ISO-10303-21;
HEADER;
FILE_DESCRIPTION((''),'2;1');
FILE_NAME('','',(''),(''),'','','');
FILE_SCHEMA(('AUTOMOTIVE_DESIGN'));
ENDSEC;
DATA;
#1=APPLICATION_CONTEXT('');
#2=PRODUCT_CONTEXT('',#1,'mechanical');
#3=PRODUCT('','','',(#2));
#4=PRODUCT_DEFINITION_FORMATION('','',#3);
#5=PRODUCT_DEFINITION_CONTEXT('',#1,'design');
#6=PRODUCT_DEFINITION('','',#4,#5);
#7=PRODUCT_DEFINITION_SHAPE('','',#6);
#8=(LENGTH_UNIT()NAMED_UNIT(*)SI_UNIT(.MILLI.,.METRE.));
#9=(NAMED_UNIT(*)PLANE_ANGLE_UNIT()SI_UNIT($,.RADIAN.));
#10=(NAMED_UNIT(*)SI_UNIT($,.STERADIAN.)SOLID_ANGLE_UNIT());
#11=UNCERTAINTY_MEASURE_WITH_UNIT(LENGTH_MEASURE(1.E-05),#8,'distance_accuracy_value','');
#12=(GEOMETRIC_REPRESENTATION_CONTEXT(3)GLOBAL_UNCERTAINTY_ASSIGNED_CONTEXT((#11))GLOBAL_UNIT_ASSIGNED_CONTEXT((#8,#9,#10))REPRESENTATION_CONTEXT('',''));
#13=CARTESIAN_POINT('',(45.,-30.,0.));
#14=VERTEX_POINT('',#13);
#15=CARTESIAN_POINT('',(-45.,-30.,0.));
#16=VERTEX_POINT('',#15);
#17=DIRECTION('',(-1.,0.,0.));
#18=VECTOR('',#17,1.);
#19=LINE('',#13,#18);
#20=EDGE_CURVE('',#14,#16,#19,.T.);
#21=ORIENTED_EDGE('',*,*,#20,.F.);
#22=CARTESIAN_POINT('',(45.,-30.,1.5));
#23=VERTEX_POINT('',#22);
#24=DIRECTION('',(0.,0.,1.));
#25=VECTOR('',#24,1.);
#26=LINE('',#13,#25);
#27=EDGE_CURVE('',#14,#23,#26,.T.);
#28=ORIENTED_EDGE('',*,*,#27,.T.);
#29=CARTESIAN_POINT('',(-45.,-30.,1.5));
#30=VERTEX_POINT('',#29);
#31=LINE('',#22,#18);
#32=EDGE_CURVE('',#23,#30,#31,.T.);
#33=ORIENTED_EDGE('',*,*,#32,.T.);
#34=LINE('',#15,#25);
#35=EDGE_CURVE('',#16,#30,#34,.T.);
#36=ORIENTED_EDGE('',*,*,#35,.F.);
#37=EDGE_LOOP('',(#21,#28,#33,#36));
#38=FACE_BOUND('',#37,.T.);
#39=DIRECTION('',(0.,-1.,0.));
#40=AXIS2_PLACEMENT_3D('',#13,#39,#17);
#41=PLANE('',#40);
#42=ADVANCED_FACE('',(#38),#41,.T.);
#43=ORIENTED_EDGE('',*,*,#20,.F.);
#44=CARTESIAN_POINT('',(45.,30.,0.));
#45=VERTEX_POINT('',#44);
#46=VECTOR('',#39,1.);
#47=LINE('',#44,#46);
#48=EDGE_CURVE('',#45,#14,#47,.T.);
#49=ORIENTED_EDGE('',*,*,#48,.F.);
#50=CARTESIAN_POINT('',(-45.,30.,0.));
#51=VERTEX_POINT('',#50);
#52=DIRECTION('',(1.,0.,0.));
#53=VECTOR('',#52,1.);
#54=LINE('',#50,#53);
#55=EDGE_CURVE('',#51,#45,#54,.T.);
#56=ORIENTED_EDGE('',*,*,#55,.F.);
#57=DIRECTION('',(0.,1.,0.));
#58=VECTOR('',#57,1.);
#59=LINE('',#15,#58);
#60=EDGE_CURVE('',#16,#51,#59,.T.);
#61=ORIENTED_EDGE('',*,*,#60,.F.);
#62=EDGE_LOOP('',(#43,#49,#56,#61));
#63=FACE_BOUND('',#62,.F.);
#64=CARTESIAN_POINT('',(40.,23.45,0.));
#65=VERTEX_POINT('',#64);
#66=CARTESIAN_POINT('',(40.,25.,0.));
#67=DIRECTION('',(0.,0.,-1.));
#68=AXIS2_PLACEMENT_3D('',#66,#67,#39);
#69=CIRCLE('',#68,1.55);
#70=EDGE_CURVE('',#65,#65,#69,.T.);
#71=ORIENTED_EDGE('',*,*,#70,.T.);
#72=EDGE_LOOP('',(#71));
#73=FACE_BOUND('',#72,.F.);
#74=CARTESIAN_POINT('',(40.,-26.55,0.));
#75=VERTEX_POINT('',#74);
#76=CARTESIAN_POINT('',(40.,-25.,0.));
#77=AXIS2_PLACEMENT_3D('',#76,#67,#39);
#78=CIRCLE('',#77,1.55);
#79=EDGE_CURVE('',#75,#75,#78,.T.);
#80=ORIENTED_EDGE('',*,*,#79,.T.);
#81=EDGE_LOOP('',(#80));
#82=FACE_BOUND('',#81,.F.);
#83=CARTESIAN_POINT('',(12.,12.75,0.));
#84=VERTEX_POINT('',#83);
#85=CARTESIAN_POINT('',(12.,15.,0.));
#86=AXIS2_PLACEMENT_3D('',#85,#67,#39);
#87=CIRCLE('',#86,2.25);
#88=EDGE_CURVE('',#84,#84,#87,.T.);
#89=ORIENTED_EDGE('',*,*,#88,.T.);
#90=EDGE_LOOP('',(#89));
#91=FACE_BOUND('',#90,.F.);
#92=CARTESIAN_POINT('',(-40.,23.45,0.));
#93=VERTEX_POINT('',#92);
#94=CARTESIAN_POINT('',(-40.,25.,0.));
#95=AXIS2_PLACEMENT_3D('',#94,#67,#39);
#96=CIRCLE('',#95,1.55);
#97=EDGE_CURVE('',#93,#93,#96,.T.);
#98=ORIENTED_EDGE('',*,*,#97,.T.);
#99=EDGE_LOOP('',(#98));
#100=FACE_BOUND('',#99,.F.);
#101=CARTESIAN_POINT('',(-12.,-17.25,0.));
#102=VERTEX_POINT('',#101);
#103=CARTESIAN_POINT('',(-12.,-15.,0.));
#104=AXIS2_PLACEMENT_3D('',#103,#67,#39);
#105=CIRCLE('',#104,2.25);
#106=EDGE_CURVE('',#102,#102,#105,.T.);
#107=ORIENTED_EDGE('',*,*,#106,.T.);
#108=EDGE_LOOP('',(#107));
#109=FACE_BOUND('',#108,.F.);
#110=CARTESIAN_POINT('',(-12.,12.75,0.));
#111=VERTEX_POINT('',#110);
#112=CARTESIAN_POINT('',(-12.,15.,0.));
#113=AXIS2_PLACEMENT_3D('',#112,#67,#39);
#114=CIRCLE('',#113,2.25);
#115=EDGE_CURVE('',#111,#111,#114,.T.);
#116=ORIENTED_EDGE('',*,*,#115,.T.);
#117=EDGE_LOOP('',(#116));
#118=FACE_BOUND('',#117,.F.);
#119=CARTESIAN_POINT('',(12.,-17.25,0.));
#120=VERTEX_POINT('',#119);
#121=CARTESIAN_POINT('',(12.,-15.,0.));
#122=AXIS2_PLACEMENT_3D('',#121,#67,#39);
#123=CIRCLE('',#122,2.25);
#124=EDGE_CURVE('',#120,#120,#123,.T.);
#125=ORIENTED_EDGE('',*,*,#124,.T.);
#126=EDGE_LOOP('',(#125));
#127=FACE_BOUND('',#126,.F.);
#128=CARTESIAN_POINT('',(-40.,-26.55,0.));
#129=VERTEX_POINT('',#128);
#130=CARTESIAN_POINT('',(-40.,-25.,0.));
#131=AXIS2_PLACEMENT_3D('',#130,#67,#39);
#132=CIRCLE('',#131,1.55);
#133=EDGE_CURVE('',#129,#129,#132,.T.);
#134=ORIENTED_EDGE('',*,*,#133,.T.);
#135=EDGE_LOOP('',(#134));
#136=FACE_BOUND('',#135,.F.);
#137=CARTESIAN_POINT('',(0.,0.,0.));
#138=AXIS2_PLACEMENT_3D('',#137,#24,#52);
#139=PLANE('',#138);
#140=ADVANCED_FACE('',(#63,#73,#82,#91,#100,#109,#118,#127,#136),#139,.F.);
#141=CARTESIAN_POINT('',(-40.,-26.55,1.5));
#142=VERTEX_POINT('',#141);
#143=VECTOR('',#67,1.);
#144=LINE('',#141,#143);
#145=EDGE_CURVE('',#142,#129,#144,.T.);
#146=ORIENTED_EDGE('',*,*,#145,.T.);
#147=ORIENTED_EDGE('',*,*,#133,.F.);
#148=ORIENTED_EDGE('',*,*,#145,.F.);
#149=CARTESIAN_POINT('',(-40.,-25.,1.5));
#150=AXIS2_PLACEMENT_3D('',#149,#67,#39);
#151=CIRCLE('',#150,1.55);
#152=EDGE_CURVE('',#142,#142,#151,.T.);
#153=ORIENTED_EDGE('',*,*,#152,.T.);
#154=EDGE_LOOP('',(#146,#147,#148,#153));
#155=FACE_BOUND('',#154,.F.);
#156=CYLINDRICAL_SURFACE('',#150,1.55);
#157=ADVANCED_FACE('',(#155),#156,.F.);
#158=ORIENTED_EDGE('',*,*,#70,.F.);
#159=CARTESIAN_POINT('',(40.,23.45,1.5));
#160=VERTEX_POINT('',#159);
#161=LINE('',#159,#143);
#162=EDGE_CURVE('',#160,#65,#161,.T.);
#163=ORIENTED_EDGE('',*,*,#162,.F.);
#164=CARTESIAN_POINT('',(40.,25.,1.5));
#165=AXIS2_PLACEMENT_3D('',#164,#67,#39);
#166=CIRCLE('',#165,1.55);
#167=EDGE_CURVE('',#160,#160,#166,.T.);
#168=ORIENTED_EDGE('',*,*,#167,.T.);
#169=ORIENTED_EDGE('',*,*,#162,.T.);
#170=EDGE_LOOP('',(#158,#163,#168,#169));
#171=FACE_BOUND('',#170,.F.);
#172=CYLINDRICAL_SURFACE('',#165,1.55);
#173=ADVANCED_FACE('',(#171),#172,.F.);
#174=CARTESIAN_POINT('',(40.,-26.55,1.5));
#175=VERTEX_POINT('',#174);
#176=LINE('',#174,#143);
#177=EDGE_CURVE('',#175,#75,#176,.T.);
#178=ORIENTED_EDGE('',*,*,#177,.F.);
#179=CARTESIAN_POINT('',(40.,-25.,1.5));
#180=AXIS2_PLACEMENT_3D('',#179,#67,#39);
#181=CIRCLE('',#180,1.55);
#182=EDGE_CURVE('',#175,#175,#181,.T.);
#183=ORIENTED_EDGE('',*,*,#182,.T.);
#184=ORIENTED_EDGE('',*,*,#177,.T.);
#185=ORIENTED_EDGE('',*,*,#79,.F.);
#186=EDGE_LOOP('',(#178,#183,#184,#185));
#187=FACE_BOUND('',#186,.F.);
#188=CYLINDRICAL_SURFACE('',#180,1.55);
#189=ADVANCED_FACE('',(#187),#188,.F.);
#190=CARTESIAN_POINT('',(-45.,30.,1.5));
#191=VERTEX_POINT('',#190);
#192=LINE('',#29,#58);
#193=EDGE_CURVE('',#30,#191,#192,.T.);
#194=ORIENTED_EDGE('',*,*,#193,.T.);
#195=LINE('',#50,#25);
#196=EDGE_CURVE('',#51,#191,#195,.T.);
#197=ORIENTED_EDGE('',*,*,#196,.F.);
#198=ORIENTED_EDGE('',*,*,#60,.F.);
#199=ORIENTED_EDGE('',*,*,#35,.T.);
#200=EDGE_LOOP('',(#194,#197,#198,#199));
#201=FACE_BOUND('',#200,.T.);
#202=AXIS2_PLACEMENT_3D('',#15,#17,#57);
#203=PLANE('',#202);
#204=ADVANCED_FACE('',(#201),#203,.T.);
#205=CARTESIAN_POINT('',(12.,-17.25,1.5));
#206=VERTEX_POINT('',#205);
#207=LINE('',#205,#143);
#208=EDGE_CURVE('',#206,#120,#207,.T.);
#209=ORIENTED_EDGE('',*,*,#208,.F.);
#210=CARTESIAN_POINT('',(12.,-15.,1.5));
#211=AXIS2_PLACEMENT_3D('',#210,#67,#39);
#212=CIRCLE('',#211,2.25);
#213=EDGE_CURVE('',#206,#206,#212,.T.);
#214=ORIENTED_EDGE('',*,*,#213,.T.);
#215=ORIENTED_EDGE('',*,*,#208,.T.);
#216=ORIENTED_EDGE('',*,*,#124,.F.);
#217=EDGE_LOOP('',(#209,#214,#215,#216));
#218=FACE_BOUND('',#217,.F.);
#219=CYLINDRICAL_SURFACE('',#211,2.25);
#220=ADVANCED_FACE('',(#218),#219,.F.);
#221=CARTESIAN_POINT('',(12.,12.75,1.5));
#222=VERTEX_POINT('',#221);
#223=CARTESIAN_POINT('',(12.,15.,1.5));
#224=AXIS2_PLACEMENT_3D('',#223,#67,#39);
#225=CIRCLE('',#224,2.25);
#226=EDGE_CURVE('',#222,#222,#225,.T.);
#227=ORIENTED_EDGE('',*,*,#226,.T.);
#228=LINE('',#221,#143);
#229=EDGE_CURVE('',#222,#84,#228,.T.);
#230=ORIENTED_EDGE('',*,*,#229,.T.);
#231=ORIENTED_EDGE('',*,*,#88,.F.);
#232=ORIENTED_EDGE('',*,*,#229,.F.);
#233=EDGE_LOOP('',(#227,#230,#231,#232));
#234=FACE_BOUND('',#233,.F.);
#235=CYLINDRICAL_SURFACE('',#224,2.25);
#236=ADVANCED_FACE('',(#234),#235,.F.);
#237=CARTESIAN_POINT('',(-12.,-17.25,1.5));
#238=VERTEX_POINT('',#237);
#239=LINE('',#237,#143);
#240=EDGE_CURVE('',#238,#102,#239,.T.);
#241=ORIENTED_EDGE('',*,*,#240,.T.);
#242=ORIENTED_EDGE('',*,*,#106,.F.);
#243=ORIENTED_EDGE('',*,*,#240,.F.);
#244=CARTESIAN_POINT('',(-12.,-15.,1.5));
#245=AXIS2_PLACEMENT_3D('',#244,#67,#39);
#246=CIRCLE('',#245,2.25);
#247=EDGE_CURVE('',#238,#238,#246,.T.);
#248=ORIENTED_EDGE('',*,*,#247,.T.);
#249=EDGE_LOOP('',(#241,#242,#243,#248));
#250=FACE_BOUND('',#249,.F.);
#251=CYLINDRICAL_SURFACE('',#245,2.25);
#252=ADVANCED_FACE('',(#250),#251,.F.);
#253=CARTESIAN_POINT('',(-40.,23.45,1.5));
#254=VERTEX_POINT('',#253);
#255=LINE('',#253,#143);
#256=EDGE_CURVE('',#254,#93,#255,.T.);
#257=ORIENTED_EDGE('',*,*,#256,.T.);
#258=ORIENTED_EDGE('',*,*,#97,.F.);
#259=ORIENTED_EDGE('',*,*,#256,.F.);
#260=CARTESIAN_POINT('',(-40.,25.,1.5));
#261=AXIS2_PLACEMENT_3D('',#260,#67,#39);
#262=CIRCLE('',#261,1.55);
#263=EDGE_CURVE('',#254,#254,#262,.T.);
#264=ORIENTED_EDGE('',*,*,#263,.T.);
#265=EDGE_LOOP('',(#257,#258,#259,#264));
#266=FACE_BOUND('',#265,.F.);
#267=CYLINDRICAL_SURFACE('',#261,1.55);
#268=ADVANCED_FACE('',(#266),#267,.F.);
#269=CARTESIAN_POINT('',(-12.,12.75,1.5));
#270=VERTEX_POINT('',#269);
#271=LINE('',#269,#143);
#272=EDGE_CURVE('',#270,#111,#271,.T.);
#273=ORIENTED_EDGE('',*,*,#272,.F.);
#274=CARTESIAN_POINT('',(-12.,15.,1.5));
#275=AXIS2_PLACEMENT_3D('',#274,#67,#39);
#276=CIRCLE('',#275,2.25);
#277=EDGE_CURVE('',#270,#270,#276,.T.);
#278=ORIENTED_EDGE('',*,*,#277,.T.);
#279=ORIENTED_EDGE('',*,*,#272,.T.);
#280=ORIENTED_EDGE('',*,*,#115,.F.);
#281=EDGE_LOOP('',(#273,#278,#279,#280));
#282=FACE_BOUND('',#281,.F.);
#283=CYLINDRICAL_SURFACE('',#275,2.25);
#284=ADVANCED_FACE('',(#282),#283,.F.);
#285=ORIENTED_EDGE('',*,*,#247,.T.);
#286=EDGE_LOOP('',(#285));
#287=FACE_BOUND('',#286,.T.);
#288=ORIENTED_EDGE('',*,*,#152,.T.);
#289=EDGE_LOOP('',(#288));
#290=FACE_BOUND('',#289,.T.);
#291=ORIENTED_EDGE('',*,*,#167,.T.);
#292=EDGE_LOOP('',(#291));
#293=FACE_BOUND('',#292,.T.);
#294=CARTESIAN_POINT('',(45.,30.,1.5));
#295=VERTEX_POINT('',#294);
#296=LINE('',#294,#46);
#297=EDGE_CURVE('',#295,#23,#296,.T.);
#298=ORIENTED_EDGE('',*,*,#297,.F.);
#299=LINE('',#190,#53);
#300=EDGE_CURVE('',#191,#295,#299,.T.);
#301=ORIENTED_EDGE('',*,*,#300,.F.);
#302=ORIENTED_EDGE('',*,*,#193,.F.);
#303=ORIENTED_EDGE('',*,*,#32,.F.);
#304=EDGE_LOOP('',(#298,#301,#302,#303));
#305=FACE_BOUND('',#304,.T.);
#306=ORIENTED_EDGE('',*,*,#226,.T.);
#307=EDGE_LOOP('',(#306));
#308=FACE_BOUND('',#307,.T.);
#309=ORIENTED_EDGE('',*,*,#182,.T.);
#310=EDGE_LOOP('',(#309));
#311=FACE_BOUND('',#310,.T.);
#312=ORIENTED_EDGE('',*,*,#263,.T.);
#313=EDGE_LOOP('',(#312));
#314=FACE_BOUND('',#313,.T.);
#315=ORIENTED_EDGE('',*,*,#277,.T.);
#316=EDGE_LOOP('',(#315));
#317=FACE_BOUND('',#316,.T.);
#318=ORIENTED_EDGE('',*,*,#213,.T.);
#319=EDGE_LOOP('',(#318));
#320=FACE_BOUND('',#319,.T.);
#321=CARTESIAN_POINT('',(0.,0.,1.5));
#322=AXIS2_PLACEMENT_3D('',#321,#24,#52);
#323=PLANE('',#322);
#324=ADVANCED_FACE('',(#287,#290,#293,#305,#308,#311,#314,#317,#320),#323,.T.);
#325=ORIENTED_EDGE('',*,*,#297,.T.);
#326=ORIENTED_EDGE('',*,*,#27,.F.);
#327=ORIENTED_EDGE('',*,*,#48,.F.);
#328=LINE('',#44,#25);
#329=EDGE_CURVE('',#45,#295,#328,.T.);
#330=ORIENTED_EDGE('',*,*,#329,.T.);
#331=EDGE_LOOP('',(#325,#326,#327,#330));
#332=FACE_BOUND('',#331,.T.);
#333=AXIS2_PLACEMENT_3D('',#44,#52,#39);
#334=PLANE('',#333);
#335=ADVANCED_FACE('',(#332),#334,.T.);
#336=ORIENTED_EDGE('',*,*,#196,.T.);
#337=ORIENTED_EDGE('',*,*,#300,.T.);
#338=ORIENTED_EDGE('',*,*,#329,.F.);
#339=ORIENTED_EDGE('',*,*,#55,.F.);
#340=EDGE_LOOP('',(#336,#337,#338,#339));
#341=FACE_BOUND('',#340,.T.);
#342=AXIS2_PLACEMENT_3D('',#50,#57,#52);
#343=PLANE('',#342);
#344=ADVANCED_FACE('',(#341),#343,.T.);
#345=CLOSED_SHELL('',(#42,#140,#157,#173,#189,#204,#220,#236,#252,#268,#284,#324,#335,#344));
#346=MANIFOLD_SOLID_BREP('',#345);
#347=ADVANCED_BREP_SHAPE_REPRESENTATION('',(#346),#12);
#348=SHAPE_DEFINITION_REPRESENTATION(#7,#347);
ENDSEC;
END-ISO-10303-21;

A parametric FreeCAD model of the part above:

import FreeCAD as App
import Part
import Sketcher

doc = App.newDocument("Part")
body = doc.addObject("PartDesign::Body", "Body")

sketch1 = body.newObject("Sketcher::SketchObject", "Sketch")
sketch1.AttachmentSupport = (doc.getObject("XY_Plane"), [""])
sketch1.MapMode = "FlatFace"
sketch1.addGeometry([
    Part.LineSegment(App.Vector(45, 30, 0), App.Vector(-45, 30, 0)),
    Part.LineSegment(App.Vector(-45, 30, 0), App.Vector(-45, -30, 0)),
    Part.LineSegment(App.Vector(-45, -30, 0), App.Vector(45, -30, 0)),
    Part.LineSegment(App.Vector(45, -30, 0), App.Vector(45, 30, 0)),
], False)
sketch1.addConstraint([
    Sketcher.Constraint("Coincident", 0, 2, 1, 1),
    Sketcher.Constraint("Coincident", 1, 2, 2, 1),
    Sketcher.Constraint("Coincident", 2, 2, 3, 1),
    Sketcher.Constraint("Coincident", 3, 2, 0, 1),
    Sketcher.Constraint("Horizontal", 0),
    Sketcher.Constraint("Vertical", 1),
    Sketcher.Constraint("Horizontal", 2),
    Sketcher.Constraint("Vertical", 3),
    Sketcher.Constraint("Symmetric", 0, 2, 2, 2, -1, 1),
    Sketcher.Constraint("DistanceX", 0, 2, 0, 1, 90.0),
    Sketcher.Constraint("DistanceY", 1, 2, 1, 1, 60.0),
])
pad1 = body.newObject("PartDesign::Pad", "Pad")
pad1.Profile = sketch1
pad1.Length = 1.5

sketch2 = body.newObject("Sketcher::SketchObject", "Sketch001")
sketch2.AttachmentSupport = (doc.getObject("XY_Plane"), [""])
sketch2.MapMode = "FlatFace"
sketch2.AttachmentOffset = App.Placement(App.Vector(0, 0, 1.5), App.Rotation())
sketch2.addGeometry([
    Part.Circle(App.Vector(-40, 25, 0), App.Vector(0, 0, 1), 1.55),
    Part.Circle(App.Vector(-40, -25, 0), App.Vector(0, 0, 1), 1.55),
    Part.Circle(App.Vector(40, -25, 0), App.Vector(0, 0, 1), 1.55),
    Part.Circle(App.Vector(40, 25, 0), App.Vector(0, 0, 1), 1.55),
], False)
sketch2.addConstraint([
    Sketcher.Constraint("Equal", 0, 1),
    Sketcher.Constraint("Equal", 1, 2),
    Sketcher.Constraint("Equal", 2, 3),
    Sketcher.Constraint("Symmetric", 0, 3, 2, 3, -1, 1),
    Sketcher.Constraint("Symmetric", 1, 3, 3, 3, -1, 1),
    Sketcher.Constraint("Symmetric", 1, 3, 2, 3, -2),
    Sketcher.Constraint("Diameter", 0, 3.1),
    Sketcher.Constraint("DistanceX", 0, 3, -1, 1, 40.0),
    Sketcher.Constraint("DistanceY", -1, 1, 0, 3, 25.0),
])
doc.recompute()
hole = body.newObject("PartDesign::Hole", "Hole")
hole.Profile = sketch2
hole.ThreadType = "None"
hole.Diameter = 3.1
hole.DepthType = "ThroughAll"

sketch3 = body.newObject("Sketcher::SketchObject", "Sketch002")
sketch3.AttachmentSupport = (doc.getObject("XY_Plane"), [""])
sketch3.MapMode = "FlatFace"
sketch3.AttachmentOffset = App.Placement(App.Vector(0, 0, 1.5), App.Rotation())
sketch3.addGeometry([
    Part.Circle(App.Vector(-12, 15, 0), App.Vector(0, 0, 1), 2.25),
    Part.Circle(App.Vector(12, 15, 0), App.Vector(0, 0, 1), 2.25),
    Part.Circle(App.Vector(-12, -15, 0), App.Vector(0, 0, 1), 2.25),
    Part.Circle(App.Vector(12, -15, 0), App.Vector(0, 0, 1), 2.25),
], False)
sketch3.addConstraint([
    Sketcher.Constraint("Equal", 0, 1),
    Sketcher.Constraint("Equal", 1, 2),
    Sketcher.Constraint("Equal", 2, 3),
    Sketcher.Constraint("Symmetric", 1, 3, 2, 3, -1, 1),
    Sketcher.Constraint("Symmetric", 0, 3, 3, 3, -1, 1),
    Sketcher.Constraint("Symmetric", 0, 3, 1, 3, -2),
    Sketcher.Constraint("Diameter", 0, 4.5),
    Sketcher.Constraint("DistanceX", 0, 3, -1, 1, 12.0),
    Sketcher.Constraint("DistanceY", -1, 1, 0, 3, 15.0),
])
doc.recompute()
hole2 = body.newObject("PartDesign::Hole", "Hole001")
hole2.Profile = sketch3
hole2.ThreadType = "None"
hole2.Diameter = 4.5
hole2.DepthType = "ThroughAll"

doc.recompute()
